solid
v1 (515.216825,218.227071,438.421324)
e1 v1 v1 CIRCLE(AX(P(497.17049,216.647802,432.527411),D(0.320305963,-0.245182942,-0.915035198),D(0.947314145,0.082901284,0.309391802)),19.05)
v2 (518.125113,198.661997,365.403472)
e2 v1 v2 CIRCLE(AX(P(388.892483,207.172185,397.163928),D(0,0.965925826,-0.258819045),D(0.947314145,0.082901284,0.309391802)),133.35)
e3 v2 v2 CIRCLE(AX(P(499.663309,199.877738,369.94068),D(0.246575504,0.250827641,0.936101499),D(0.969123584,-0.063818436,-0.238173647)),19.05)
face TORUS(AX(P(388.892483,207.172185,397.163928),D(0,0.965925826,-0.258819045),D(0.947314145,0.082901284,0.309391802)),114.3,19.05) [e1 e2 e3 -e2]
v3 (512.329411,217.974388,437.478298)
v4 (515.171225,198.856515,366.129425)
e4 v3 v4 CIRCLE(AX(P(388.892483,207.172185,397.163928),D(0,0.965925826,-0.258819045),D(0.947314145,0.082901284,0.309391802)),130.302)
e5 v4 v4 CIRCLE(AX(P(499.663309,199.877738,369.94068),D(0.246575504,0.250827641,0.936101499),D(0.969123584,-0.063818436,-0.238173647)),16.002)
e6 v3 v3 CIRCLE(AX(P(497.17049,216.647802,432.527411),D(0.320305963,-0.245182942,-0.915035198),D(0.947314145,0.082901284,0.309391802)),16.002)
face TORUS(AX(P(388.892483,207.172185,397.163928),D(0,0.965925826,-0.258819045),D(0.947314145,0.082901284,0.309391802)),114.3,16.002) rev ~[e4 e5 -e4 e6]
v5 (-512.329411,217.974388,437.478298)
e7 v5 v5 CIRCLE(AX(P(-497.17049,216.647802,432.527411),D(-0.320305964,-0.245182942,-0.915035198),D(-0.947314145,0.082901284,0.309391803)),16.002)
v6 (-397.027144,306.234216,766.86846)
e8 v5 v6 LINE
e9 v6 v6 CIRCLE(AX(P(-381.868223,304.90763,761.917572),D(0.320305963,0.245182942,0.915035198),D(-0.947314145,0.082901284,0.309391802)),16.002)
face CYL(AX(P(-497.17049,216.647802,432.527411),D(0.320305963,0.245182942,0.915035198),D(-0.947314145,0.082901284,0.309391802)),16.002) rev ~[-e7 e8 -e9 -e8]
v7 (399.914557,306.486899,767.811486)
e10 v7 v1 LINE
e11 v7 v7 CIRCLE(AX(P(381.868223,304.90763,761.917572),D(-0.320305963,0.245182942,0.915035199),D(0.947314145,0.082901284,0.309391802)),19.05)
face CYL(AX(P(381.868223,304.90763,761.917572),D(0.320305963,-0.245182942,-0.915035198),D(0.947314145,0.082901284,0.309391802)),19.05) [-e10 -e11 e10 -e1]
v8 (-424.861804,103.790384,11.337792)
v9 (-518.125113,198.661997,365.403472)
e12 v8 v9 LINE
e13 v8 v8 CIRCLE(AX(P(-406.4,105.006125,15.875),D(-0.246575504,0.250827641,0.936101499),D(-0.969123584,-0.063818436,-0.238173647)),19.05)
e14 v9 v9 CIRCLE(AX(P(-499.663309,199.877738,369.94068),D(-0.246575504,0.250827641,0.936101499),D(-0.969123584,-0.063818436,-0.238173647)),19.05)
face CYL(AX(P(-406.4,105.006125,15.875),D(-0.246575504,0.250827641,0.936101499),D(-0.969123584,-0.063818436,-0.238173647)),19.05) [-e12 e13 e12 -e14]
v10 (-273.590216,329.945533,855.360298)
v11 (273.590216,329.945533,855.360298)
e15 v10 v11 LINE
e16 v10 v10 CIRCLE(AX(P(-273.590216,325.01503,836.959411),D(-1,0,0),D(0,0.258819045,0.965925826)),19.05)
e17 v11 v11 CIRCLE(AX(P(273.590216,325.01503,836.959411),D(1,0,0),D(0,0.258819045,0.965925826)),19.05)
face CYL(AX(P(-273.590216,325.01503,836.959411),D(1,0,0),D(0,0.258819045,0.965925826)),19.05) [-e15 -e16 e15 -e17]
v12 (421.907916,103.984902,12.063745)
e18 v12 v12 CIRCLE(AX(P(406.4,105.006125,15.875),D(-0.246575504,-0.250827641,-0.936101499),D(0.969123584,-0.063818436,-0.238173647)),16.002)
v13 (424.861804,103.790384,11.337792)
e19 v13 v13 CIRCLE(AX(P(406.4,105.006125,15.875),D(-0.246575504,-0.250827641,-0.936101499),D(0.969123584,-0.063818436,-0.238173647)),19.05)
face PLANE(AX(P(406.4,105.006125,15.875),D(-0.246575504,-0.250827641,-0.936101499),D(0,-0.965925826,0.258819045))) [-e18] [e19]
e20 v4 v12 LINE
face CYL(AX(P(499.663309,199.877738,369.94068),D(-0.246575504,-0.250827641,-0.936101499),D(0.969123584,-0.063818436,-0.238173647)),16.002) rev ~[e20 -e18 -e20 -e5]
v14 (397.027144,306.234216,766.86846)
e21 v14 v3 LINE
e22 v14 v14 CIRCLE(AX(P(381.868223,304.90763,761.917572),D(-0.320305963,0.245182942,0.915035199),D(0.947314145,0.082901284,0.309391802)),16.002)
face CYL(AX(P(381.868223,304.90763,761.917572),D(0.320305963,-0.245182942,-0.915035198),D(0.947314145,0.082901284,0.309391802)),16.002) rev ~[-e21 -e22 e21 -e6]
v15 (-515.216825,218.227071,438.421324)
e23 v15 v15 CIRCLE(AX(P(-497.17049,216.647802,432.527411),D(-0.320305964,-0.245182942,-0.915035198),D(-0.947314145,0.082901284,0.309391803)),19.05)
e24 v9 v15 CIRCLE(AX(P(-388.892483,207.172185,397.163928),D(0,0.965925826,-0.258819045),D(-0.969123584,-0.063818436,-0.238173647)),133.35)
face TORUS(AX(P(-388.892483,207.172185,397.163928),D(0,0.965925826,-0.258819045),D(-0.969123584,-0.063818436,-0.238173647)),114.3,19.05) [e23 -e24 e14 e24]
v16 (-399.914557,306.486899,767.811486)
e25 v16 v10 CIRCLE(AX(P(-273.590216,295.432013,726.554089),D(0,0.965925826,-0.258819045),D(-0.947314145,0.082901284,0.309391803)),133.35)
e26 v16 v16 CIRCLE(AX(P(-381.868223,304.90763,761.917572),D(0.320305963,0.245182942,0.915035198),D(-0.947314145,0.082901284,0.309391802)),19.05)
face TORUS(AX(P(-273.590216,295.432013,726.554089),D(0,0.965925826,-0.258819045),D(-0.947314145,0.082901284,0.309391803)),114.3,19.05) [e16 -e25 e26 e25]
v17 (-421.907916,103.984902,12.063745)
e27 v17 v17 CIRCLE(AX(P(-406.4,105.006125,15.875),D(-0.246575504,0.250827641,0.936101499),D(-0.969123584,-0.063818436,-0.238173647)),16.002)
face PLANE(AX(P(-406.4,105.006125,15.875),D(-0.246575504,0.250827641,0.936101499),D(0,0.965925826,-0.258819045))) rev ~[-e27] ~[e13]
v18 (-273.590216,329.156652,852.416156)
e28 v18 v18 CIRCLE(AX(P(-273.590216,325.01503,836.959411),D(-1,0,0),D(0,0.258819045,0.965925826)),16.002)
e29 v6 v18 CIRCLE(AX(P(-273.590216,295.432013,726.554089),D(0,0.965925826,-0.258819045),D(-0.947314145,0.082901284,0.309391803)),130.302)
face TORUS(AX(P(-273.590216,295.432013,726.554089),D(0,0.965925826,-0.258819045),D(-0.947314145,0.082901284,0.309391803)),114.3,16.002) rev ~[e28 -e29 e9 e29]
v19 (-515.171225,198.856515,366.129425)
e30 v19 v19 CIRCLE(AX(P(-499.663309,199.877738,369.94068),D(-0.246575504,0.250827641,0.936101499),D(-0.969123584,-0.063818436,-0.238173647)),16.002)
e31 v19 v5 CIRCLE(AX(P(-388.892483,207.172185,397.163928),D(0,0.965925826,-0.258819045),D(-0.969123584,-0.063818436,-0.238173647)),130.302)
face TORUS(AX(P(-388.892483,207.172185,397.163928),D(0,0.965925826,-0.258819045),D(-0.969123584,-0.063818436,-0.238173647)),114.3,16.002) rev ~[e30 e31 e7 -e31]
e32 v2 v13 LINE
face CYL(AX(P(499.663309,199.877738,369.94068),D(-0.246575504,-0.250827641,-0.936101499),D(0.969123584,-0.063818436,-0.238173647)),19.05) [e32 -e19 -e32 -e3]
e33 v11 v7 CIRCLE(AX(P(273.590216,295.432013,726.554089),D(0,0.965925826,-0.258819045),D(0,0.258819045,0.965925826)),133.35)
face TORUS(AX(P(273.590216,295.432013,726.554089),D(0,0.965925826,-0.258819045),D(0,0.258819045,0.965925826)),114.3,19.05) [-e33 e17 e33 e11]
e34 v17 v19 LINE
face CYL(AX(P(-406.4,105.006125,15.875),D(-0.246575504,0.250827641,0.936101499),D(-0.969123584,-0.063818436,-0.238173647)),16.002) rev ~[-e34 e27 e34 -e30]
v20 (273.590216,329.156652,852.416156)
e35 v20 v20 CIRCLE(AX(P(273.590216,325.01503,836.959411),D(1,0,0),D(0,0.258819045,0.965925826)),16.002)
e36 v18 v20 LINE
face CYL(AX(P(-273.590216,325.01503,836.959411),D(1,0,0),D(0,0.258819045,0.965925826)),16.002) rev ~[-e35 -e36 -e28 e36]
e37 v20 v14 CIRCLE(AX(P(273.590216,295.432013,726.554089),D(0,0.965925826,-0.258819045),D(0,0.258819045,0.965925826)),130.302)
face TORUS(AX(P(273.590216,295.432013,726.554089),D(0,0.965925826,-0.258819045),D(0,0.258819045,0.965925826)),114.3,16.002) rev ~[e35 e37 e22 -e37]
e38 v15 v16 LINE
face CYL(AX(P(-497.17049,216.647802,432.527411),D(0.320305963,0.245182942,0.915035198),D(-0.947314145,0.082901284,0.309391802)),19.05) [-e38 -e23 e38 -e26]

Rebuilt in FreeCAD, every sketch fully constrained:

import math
import FreeCAD as App
import Part
import Sketcher
from FreeCAD import Vector
Q = App.Units.Quantity

doc = App.newDocument("Part")
body = doc.addObject("PartDesign::Body", "Body")

# Sketch on an angled plane
sketch1 = doc.addObject("Sketcher::SketchObject", "Sketch")
body.addObject(sketch1)
sketch1.Placement = App.Placement(Vector(34.867585, 35.468868, 132.371618), App.Rotation(Vector(0.969123584, -0.063818436, -0.238173647), Vector(0, -0.965925827, 0.258819045), Vector(-0.246575504, -0.250827641, -0.936101499), "ZXY"))
sketch1.addGeometry([
    Part.Circle(Vector(383.369491, -97.319376, 0), Vector(0, 0, 1), 19.05),
    Part.Circle(Vector(383.369491, -97.319376, 0), Vector(0, 0, 1), 16.002),
], False)
sketch1.addConstraint([
    Sketcher.Constraint("Coincident", 1, 3, 0, 3),
    Sketcher.Constraint("Diameter", 0, Q("1.5 in")),
    Sketcher.Constraint("Diameter", 1, Q("1.26 in")),
    Sketcher.Constraint("DistanceX", -1, 1, 0, 3, Q("383.369491 mm")),
    Sketcher.Constraint("DistanceY", 0, 3, -1, 1, Q("97.319376 mm")),
])

# Sketch on an angled plane
sketch2 = doc.addObject("Sketcher::SketchObject", "Sketch001")
body.addObject(sketch2)
sketch2.Placement = App.Placement(Vector(0, 94.003298, -25.188108), App.Rotation(Vector(0, 0.258819045, 0.965925826), Vector(0.999999999, 0, 0), Vector(0, 0.965925826, -0.258819045), "ZXY"))
sketch2.addGeometry([
    Part.LineSegment(Vector(42.511657, -406.4, 0), Vector(409.067422, -499.663308, 0)),  # 0
    Part.ArcOfCircle(Part.Circle(Vector(437.251002, -388.892483, 0), Vector(0, 0, 1), 114.3), math.radians(-104.27496), math.radians(-71.318571)),  # 1
    Part.LineSegment(Vector(473.861973, -497.17049, 0), Vector(814.871761, -381.868222, 0)),  # 2
    Part.ArcOfCircle(Part.Circle(Vector(778.26079, -273.590216, 0), Vector(0, 0, 1), 114.3), math.radians(-71.318571), math.radians(0)),  # 3
    Part.LineSegment(Vector(892.56079, -273.590216, 0), Vector(892.56079, 273.590216, 0)),  # 4
    Part.ArcOfCircle(Part.Circle(Vector(778.26079, 273.590216, 0), Vector(0, 0, 1), 114.3), math.radians(0), math.radians(71.318571)),  # 5
    Part.LineSegment(Vector(814.871761, 381.868222, 0), Vector(473.861973, 497.17049, 0)),  # 6
    Part.ArcOfCircle(Part.Circle(Vector(437.251002, 388.892483, 0), Vector(0, 0, 1), 114.3), math.radians(71.318571), math.radians(104.27496)),  # 7
    Part.LineSegment(Vector(409.067422, 499.663308, 0), Vector(42.511657, 406.4, 0)),  # 8
], False)
sketch2.addConstraint([
    Sketcher.Constraint("Tangent", 0, 2, 1, 1),
    Sketcher.Constraint("Tangent", 1, 2, 2, 1),
    Sketcher.Constraint("Tangent", 2, 2, 3, 1),
    Sketcher.Constraint("Tangent", 3, 2, 4, 1),
    Sketcher.Constraint("Tangent", 4, 2, 5, 1),
    Sketcher.Constraint("Tangent", 5, 2, 6, 1),
    Sketcher.Constraint("Tangent", 6, 2, 7, 1),
    Sketcher.Constraint("Tangent", 7, 2, 8, 1),
    Sketcher.Constraint("Vertical", 4),
    Sketcher.Constraint("Equal", 1, 3),
    Sketcher.Constraint("Equal", 3, 5),
    Sketcher.Constraint("Equal", 5, 7),
    Sketcher.Constraint("Symmetric", 1, 3, 7, 3, -1),
    Sketcher.Constraint("Symmetric", 0, 1, 8, 2, -1),
    Sketcher.Constraint("Vertical", 2, 2, 5, 2),
    Sketcher.Constraint("Radius", 1, Q("4.5 in")),
    Sketcher.Constraint("DistanceY", 0, 1, -1, 1, Q("16 in")),
    Sketcher.Constraint("Distance", 2, Q("359.9754 mm")),
    Sketcher.Constraint("DistanceY", 4, 1, 4, 2, Q("547.180431 mm")),
    Sketcher.Constraint("DistanceX", -1, 1, 1, 3, Q("437.251002 mm")),
    Sketcher.Constraint("DistanceY", 1, 3, 5, 3, Q("662.482699 mm")),
    Sketcher.Constraint("DistanceX", -1, 1, 0, 2, Q("409.067422 mm")),
])
doc.recompute()

additivepipe = doc.addObject("PartDesign::AdditivePipe", "AdditivePipe")
body.addObject(additivepipe)
additivepipe.Profile = sketch1
additivepipe.Spine = (sketch2, ["Edge1", "Edge2", "Edge3", "Edge4", "Edge5", "Edge6", "Edge7", "Edge8", "Edge9"])

doc.recompute()
